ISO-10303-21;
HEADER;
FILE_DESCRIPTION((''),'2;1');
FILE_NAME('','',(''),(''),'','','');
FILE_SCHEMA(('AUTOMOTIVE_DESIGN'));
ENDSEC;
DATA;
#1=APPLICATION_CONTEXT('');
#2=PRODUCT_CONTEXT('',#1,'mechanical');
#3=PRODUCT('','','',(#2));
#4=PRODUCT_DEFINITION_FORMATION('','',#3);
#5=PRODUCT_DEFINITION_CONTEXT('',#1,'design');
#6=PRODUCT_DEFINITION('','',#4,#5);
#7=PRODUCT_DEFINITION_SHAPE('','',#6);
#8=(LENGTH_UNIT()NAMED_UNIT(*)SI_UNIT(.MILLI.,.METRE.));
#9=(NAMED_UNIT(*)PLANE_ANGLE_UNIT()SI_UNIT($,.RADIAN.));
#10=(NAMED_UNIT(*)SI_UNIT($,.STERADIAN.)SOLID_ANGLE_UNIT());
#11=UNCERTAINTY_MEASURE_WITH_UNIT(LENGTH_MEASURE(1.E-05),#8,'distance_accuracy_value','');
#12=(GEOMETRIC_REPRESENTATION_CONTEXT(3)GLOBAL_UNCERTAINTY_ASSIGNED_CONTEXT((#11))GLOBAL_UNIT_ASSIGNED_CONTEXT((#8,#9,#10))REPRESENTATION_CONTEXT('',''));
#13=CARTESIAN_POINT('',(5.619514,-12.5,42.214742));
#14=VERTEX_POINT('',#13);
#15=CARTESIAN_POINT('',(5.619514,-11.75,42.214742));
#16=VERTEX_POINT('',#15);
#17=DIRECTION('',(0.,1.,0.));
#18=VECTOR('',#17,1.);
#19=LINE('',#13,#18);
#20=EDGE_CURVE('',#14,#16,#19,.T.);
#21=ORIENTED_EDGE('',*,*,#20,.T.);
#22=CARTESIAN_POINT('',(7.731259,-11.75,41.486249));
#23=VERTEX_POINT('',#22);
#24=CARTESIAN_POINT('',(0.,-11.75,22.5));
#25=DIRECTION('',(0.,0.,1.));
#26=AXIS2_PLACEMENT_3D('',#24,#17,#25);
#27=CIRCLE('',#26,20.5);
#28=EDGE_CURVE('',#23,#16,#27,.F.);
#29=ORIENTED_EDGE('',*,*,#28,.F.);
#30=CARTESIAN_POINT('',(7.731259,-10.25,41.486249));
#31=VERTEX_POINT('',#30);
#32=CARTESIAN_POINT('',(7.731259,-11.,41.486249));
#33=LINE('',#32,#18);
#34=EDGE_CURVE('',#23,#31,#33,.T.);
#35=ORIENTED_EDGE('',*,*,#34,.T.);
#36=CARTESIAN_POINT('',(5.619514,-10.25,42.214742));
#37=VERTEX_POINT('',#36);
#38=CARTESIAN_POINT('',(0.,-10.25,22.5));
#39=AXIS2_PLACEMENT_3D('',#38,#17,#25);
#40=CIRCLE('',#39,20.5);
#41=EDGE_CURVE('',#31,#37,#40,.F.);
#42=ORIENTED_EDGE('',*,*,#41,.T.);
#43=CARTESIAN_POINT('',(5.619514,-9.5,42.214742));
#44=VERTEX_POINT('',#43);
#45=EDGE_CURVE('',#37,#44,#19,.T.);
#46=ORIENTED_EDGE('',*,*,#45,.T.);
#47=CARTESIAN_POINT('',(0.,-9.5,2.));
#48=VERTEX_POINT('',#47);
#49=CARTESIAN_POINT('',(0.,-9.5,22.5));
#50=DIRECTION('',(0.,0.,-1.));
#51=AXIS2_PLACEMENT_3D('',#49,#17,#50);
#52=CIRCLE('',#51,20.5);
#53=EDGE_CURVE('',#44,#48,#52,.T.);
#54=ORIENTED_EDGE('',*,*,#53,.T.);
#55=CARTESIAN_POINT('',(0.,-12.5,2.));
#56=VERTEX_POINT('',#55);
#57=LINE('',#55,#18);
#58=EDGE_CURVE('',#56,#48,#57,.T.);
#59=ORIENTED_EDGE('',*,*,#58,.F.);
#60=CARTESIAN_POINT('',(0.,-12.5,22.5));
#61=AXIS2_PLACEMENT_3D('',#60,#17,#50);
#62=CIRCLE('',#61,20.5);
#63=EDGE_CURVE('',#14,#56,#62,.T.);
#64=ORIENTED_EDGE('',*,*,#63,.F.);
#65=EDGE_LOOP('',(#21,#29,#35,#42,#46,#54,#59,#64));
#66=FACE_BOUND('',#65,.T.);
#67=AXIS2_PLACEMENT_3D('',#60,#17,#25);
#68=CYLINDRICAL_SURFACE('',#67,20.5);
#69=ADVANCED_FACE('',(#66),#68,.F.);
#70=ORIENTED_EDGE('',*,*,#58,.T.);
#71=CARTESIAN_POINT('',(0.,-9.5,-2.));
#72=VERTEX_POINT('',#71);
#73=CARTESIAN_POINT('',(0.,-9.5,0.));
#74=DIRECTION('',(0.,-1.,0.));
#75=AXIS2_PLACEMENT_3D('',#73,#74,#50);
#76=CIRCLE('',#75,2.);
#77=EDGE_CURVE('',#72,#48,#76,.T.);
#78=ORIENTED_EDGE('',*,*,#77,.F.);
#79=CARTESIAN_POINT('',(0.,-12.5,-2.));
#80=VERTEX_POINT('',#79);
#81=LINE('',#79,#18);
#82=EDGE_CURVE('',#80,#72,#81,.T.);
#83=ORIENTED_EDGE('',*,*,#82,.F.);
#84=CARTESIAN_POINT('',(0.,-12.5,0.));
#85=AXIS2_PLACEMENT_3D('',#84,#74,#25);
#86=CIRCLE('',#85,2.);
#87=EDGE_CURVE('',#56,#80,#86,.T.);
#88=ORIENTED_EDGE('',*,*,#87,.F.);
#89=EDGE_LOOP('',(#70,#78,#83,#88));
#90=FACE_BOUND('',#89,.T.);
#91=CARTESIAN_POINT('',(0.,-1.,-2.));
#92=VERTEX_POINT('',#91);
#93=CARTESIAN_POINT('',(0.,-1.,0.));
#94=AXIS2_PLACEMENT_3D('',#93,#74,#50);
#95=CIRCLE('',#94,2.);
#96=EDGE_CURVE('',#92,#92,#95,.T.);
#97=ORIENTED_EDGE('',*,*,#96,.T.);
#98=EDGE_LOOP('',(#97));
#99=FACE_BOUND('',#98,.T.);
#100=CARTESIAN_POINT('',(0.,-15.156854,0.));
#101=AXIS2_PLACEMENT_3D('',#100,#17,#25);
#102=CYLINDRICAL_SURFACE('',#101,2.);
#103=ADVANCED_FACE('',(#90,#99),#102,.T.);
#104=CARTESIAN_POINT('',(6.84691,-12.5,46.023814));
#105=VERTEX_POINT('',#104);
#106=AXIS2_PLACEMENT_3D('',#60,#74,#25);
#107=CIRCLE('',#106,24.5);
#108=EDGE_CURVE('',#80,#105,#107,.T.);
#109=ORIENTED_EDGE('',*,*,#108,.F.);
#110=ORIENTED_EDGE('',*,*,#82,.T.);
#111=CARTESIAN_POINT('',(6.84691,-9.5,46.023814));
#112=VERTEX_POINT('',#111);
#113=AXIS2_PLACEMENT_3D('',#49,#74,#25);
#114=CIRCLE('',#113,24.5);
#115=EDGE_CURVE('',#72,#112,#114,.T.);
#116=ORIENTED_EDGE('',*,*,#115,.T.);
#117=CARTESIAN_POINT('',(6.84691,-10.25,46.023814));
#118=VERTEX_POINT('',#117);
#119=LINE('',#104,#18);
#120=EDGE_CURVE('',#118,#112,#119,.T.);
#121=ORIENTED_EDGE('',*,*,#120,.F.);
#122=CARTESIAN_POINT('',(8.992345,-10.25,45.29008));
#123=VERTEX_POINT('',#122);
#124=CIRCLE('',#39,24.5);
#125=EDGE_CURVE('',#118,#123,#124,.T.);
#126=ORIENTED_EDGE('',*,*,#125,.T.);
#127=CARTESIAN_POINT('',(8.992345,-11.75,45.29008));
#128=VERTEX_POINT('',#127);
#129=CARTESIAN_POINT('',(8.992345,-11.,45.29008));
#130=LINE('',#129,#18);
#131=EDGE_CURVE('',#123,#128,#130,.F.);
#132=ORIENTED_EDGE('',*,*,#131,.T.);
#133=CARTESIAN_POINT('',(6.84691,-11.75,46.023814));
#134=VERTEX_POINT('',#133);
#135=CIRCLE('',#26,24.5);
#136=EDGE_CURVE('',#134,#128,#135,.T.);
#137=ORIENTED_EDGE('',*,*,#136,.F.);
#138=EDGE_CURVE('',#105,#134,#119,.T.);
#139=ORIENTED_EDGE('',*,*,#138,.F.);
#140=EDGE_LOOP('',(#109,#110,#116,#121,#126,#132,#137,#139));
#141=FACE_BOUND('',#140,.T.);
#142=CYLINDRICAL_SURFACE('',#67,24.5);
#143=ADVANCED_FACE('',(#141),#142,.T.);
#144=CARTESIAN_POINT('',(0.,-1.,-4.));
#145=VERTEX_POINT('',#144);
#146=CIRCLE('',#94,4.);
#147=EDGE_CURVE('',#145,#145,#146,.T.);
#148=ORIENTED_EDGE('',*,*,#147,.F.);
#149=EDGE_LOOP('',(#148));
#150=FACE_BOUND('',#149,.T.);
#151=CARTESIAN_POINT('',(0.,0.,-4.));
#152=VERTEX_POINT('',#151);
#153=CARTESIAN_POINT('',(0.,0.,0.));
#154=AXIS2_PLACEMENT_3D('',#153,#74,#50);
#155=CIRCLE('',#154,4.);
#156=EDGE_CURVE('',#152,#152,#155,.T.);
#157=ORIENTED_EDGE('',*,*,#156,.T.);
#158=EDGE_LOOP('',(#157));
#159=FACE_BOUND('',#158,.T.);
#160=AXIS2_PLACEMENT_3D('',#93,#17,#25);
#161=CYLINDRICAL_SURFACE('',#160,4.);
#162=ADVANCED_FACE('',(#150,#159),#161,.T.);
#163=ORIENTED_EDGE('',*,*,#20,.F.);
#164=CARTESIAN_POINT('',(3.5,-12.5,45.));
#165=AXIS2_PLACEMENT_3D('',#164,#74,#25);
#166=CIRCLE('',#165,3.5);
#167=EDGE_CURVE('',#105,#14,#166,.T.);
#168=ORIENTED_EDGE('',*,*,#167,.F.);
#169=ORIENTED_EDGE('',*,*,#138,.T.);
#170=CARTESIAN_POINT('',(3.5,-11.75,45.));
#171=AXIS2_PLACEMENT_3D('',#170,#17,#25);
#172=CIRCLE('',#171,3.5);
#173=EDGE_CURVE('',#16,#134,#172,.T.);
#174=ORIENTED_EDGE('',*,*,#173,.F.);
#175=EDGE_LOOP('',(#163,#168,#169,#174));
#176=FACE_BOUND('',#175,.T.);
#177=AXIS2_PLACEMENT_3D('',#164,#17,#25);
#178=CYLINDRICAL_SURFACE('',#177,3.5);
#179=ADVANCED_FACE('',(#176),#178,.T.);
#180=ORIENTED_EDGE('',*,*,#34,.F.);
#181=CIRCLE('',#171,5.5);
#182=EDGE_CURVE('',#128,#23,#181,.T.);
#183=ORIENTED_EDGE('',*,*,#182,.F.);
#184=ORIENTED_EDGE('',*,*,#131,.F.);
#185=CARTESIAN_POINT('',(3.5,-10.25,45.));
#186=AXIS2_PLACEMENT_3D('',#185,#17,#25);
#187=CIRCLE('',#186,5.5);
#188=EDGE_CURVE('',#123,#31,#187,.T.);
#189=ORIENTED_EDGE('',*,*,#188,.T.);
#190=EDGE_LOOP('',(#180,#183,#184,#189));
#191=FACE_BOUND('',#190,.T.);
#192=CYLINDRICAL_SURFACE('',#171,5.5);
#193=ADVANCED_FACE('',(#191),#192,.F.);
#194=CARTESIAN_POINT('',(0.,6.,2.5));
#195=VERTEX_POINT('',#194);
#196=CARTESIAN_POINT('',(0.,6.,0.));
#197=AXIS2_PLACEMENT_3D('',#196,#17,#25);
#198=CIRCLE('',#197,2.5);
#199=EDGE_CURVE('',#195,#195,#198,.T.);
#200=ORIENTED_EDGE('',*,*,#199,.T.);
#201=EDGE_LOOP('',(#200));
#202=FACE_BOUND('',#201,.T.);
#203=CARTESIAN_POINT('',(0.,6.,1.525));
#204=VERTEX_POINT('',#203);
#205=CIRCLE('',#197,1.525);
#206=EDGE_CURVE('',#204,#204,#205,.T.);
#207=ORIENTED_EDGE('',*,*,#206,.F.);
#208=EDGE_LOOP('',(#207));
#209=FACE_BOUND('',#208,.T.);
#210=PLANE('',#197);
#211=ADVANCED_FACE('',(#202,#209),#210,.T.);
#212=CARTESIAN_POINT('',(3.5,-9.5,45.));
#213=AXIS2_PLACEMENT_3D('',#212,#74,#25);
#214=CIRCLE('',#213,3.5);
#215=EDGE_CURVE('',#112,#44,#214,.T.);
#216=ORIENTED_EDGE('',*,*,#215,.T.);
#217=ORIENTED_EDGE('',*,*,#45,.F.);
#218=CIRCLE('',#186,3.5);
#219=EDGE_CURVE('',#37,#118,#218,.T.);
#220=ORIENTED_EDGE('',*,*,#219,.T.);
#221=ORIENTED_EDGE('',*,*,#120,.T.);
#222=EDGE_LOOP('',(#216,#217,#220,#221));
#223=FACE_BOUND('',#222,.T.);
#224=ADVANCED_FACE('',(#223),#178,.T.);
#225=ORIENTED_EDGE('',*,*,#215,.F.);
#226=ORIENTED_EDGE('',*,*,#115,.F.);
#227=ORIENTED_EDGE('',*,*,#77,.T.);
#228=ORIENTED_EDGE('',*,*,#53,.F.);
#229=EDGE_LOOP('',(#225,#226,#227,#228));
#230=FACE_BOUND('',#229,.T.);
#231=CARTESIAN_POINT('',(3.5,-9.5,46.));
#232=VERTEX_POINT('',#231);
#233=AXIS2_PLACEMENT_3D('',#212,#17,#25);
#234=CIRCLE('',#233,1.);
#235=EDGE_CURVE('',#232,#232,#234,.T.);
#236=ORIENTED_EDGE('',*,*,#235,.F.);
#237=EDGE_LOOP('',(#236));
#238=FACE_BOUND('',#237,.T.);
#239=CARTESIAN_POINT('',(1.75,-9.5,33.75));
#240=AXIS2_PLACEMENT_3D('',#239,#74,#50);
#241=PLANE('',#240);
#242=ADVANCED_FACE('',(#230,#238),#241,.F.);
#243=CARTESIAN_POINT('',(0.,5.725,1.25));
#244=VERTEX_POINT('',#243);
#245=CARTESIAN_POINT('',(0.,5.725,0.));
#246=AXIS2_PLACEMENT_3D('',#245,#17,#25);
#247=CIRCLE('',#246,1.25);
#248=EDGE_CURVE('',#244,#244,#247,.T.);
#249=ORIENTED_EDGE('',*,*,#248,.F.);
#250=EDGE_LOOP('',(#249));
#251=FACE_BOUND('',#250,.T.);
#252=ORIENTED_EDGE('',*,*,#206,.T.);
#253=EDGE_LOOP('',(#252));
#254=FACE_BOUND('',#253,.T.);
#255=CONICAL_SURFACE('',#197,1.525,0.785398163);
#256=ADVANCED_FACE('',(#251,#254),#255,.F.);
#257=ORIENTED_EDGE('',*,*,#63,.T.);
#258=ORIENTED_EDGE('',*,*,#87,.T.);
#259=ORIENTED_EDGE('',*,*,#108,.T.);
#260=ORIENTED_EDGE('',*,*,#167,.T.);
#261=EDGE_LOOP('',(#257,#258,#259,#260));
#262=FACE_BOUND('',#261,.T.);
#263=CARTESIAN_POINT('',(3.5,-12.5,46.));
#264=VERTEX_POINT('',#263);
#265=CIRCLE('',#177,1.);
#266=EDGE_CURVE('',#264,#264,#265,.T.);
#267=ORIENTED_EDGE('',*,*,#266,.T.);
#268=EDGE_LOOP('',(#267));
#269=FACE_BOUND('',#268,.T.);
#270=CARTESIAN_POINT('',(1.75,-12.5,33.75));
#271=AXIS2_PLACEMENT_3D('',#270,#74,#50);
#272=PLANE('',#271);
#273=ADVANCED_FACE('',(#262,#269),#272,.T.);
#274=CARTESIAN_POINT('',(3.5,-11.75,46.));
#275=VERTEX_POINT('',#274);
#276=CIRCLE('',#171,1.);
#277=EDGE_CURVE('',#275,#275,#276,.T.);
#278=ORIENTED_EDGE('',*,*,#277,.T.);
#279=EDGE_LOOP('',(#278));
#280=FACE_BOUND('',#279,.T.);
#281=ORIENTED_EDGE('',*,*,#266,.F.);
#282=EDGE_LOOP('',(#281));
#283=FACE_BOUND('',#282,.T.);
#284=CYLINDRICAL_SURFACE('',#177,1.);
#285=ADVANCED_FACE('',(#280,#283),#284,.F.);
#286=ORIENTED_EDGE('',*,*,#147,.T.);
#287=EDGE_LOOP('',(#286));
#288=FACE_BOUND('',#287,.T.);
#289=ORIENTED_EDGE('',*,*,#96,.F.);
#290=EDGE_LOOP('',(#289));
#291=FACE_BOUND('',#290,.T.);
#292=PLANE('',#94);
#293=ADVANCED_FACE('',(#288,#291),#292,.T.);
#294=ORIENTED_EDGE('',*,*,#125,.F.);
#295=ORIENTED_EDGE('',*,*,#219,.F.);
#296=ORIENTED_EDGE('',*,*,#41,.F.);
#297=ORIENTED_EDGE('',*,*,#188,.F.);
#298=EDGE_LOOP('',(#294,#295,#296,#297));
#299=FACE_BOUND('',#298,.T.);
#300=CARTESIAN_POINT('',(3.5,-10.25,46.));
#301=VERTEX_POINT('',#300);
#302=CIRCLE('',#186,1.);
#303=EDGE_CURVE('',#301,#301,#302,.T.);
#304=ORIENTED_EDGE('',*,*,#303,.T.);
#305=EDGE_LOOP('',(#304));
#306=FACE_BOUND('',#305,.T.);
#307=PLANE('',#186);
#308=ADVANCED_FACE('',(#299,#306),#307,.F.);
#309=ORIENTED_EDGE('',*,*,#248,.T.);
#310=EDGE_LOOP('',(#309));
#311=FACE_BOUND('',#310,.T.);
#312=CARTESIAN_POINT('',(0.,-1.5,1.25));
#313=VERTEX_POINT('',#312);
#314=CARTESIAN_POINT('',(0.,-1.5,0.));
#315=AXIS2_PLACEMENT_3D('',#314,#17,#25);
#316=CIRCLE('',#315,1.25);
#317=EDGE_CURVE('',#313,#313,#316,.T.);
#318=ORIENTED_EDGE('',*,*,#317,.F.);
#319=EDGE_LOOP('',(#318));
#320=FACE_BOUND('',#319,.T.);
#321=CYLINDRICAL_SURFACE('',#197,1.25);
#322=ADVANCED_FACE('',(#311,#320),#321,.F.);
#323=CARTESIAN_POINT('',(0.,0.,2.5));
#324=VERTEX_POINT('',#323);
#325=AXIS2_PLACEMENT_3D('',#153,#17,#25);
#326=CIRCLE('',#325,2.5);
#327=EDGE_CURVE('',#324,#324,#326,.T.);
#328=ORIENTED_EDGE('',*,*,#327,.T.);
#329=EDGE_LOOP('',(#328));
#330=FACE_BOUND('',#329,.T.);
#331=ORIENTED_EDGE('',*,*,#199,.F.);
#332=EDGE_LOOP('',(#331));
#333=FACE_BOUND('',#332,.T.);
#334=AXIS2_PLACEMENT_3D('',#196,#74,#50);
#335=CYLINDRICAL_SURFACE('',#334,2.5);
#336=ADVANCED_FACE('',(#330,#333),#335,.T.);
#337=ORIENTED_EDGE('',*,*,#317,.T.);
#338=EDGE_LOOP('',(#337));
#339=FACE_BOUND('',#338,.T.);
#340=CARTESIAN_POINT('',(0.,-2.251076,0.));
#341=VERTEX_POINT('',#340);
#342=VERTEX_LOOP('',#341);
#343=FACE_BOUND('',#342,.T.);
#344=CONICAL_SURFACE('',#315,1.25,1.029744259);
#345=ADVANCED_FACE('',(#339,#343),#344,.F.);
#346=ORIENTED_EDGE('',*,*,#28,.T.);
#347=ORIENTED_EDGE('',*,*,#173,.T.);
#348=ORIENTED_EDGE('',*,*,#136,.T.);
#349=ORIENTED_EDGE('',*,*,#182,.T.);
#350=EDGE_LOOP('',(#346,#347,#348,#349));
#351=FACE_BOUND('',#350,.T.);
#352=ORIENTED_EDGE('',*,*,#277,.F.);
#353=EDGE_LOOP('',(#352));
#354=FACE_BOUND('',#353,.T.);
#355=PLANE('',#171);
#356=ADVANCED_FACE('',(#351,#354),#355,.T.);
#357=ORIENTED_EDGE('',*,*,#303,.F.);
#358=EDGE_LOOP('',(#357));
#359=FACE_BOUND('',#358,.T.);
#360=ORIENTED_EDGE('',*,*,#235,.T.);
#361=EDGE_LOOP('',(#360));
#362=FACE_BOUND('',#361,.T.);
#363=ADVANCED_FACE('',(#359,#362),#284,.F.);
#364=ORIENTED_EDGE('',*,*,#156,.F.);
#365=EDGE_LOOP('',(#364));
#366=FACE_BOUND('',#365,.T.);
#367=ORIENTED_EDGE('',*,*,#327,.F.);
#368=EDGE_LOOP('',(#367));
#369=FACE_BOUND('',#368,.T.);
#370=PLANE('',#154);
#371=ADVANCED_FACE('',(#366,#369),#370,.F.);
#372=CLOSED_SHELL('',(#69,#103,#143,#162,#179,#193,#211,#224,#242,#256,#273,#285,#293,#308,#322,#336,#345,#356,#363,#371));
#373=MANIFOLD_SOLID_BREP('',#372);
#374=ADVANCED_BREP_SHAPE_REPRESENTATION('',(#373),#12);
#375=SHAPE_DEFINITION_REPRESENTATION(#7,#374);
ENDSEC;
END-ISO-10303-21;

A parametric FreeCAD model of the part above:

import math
import FreeCAD as App
import Part
import Sketcher

doc = App.newDocument("Part")
params = doc.addObject("Spreadsheet::Sheet", "Params")
for row, (alias, value) in enumerate([
    ("sketch1_diameter", "5 mm"),
    ("pad1_length", "6 mm"),
    ("sketch2_diameter", "8 mm"),
    ("pad2_length", "1 mm"),
    ("sketch3_radius", "2 mm"),
    ("sketch3_radius2", "3.5 mm"),
    ("sketch3_radius3", "20.5 mm"),
    ("pad3_length", "3 mm"),
    ("sketch4_diameter", "4 mm"),
    ("pad4_length", "8.5 mm"),
    ("sketch5_diameter", "11 mm"),
    ("pocket1_length", "1.5 mm"),
    ("sketch6_diameter", "2 mm"),
    ("sketch7_diameter", "2.5 mm"),
    ("hole_diameter", "2.5 mm"),
    ("hole_depth", "7.5 mm"),
    ("hole_csink_diameter", "3.05 mm"),
], start=1):
    params.set(f"A{row}", alias)
    params.set(f"B{row}", "=" + value)
    params.setAlias(f"B{row}", alias)

body = doc.addObject("PartDesign::Body", "Body")

sketch1 = doc.addObject("Sketcher::SketchObject", "Sketch")
body.addObject(sketch1)
sketch1.AttachmentSupport = (doc.XZ_Plane, [""])
sketch1.MapMode = "FlatFace"
sketch1.addGeometry(Part.Circle(App.Vector(0, 0, 0), App.Vector(0, 0, 1), 2.5), False)
sketch1.addConstraint(Sketcher.Constraint("Coincident", 0, 3, -1, 1))
sketch1.addConstraint(Sketcher.Constraint("Diameter", 0, 5.0))
sketch1.setExpression("Constraints[1]", "Params.sketch1_diameter")
pad1 = doc.addObject("PartDesign::Pad", "Pad")
body.addObject(pad1)
pad1.Profile = sketch1
pad1.setExpression("Length", "Params.pad1_length")
pad1.Reversed = True

sketch2 = doc.addObject("Sketcher::SketchObject", "Sketch001")
body.addObject(sketch2)
sketch2.AttachmentSupport = (doc.XZ_Plane, [""])
sketch2.MapMode = "FlatFace"
sketch2.addGeometry(Part.Circle(App.Vector(0, 0, 0), App.Vector(0, 0, 1), 4), False)
sketch2.addConstraint(Sketcher.Constraint("Coincident", 0, 3, -1, 1))
sketch2.addConstraint(Sketcher.Constraint("Diameter", 0, 8.0))
sketch2.setExpression("Constraints[1]", "Params.sketch2_diameter")
pad2 = doc.addObject("PartDesign::Pad", "Pad001")
body.addObject(pad2)
pad2.Profile = sketch2
pad2.setExpression("Length", "Params.pad2_length")
body2 = doc.addObject("PartDesign::Body", "Body001")

sketch3 = doc.addObject("Sketcher::SketchObject", "Sketch002")
body2.addObject(sketch3)
sketch3.AttachmentSupport = (doc.getObject("XZ_Plane001"), [""])
sketch3.MapMode = "FlatFace"
sketch3.AttachmentOffset = App.Placement(App.Vector(0, 0, 11), App.Rotation())
sketch3.addGeometry(Part.ArcOfCircle(Part.Circle(App.Vector(3.5, 45, 0), App.Vector(0, 0, 1), 3.5), math.radians(17), math.radians(307)), False)
sketch3.addGeometry(Part.ArcOfCircle(Part.Circle(App.Vector(0, 22.5, 0), App.Vector(0, 0, 1), 20.5), math.radians(-90), math.radians(74)), False)
sketch3.addGeometry(Part.ArcOfCircle(Part.Circle(App.Vector(0, 0, 0), App.Vector(0, 0, 1), 2), math.radians(90), math.radians(270)), False)
sketch3.addGeometry(Part.ArcOfCircle(Part.Circle(App.Vector(0, 22.5, 0), App.Vector(0, 0, 1), 24.5), math.radians(-90), math.radians(74)), False)
sketch3.addConstraint(Sketcher.Constraint("Coincident", 0, 2, 1, 2))
sketch3.addConstraint(Sketcher.Constraint("Tangent", 1, 1, 2, 1))
sketch3.addConstraint(Sketcher.Constraint("Tangent", 2, 2, 3, 1))
sketch3.addConstraint(Sketcher.Constraint("Coincident", 3, 2, 0, 1))
sketch3.addConstraint(Sketcher.Constraint("Coincident", 2, 3, -1, 1))
sketch3.addConstraint(Sketcher.Constraint("Coincident", 3, 3, 1, 3))
sketch3.addConstraint(Sketcher.Constraint("PointOnObject", 1, 3, -2))
sketch3.addConstraint(Sketcher.Constraint("Radius", 2, 2.0))
sketch3.addConstraint(Sketcher.Constraint("Radius", 0, 3.5))
sketch3.addConstraint(Sketcher.Constraint("Radius", 1, 20.5))
sketch3.addConstraint(Sketcher.Constraint("DistanceY", -1, 1, 0, 3, 45.0))
sketch3.addConstraint(Sketcher.Constraint("DistanceX", -1, 1, 0, 3, 3.5))
sketch3.setExpression("Constraints[7]", "Params.sketch3_radius")
sketch3.setExpression("Constraints[8]", "Params.sketch3_radius2")
sketch3.setExpression("Constraints[9]", "Params.sketch3_radius3")
pad3 = doc.addObject("PartDesign::Pad", "Pad002")
body2.addObject(pad3)
pad3.Profile = sketch3
pad3.setExpression("Length", "Params.pad3_length")
pad3.Midplane = True
body.AllowCompound = True
doc.recompute()

boolean = doc.addObject("PartDesign::Boolean", "Boolean")
body.addObject(boolean)
boolean.Type = "Fuse"
boolean.addObjects([body2])

sketch4 = doc.addObject("Sketcher::SketchObject", "Sketch003")
body.addObject(sketch4)
sketch4.AttachmentSupport = (doc.XZ_Plane, [""])
sketch4.MapMode = "FlatFace"
sketch4.AttachmentOffset = App.Placement(App.Vector(0, 0, 1), App.Rotation())
sketch4.addGeometry(Part.Circle(App.Vector(0, 0, 0), App.Vector(0, 0, 1), 2), False)
sketch4.addConstraint(Sketcher.Constraint("Coincident", 0, 3, -1, 1))
sketch4.addConstraint(Sketcher.Constraint("Diameter", 0, 4.0))
sketch4.setExpression("Constraints[1]", "Params.sketch4_diameter")
pad4 = doc.addObject("PartDesign::Pad", "Pad003")
body.addObject(pad4)
pad4.Profile = sketch4
pad4.setExpression("Length", "Params.pad4_length")

sketch5 = doc.addObject("Sketcher::SketchObject", "Sketch004")
body.addObject(sketch5)
sketch5.AttachmentSupport = (doc.XZ_Plane, [""])
sketch5.MapMode = "FlatFace"
sketch5.AttachmentOffset = App.Placement(App.Vector(0, 0, 11), App.Rotation())
sketch5.addGeometry(Part.Circle(App.Vector(4, 45, 0), App.Vector(0, 0, 1), 6), False)
sketch5.addConstraint(Sketcher.Constraint("Diameter", 0, 11.0))
sketch5.addConstraint(Sketcher.Constraint("DistanceY", -1, 1, 0, 3, 45.0))
sketch5.addConstraint(Sketcher.Constraint("DistanceX", -1, 1, 0, 3, 3.5))
sketch5.setExpression("Constraints[0]", "Params.sketch5_diameter")
pocket1 = doc.addObject("PartDesign::Pocket", "Pocket")
body.addObject(pocket1)
pocket1.Profile = sketch5
pocket1.setExpression("Length", "Params.pocket1_length")
pocket1.Midplane = True

sketch6 = doc.addObject("Sketcher::SketchObject", "Sketch005")
body.addObject(sketch6)
sketch6.AttachmentSupport = (doc.XZ_Plane, [""])
sketch6.MapMode = "FlatFace"
sketch6.AttachmentOffset = App.Placement(App.Vector(0, 0, 9.5), App.Rotation())
sketch6.addGeometry(Part.Circle(App.Vector(3.5, 45, 0), App.Vector(0, 0, 1), 1), False)
sketch6.addConstraint(Sketcher.Constraint("Diameter", 0, 2.0))
sketch6.addConstraint(Sketcher.Constraint("DistanceY", -1, 1, 0, 3, 45.0))
sketch6.addConstraint(Sketcher.Constraint("DistanceX", -1, 1, 0, 3, 3.5))
sketch6.setExpression("Constraints[0]", "Params.sketch6_diameter")
pocket2 = doc.addObject("PartDesign::Pocket", "Pocket001")
body.addObject(pocket2)
pocket2.Profile = sketch6
pocket2.Type = "ThroughAll"
pocket2.Reversed = True

sketch7 = doc.addObject("Sketcher::SketchObject", "Sketch006")
body.addObject(sketch7)
sketch7.AttachmentSupport = (doc.XZ_Plane, [""])
sketch7.MapMode = "FlatFace"
sketch7.AttachmentOffset = App.Placement(App.Vector(0, 0, -6), App.Rotation())
sketch7.addGeometry(Part.Circle(App.Vector(0, 0, 0), App.Vector(0, 0, 1), 1.2), False)
sketch7.addConstraint(Sketcher.Constraint("Coincident", 0, 3, -1, 1))
sketch7.addConstraint(Sketcher.Constraint("Diameter", 0, 2.5))
sketch7.setExpression("Constraints[1]", "Params.sketch7_diameter")
doc.recompute()
hole = doc.addObject("PartDesign::Hole", "Hole")
body.addObject(hole)
hole.Profile = sketch7
hole.ThreadType = "None"
hole.setExpression("Diameter", "Params.hole_diameter")
hole.DepthType = "Dimension"
hole.setExpression("Depth", "Params.hole_depth")
hole.DrillPoint = "Angled"
hole.DrillPointAngle = 118
hole.HoleCutType = "Countersink"
hole.setExpression("HoleCutDiameter", "Params.hole_csink_diameter")
hole.HoleCutCountersinkAngle = 90
hole.Reversed = True

doc.recompute()
